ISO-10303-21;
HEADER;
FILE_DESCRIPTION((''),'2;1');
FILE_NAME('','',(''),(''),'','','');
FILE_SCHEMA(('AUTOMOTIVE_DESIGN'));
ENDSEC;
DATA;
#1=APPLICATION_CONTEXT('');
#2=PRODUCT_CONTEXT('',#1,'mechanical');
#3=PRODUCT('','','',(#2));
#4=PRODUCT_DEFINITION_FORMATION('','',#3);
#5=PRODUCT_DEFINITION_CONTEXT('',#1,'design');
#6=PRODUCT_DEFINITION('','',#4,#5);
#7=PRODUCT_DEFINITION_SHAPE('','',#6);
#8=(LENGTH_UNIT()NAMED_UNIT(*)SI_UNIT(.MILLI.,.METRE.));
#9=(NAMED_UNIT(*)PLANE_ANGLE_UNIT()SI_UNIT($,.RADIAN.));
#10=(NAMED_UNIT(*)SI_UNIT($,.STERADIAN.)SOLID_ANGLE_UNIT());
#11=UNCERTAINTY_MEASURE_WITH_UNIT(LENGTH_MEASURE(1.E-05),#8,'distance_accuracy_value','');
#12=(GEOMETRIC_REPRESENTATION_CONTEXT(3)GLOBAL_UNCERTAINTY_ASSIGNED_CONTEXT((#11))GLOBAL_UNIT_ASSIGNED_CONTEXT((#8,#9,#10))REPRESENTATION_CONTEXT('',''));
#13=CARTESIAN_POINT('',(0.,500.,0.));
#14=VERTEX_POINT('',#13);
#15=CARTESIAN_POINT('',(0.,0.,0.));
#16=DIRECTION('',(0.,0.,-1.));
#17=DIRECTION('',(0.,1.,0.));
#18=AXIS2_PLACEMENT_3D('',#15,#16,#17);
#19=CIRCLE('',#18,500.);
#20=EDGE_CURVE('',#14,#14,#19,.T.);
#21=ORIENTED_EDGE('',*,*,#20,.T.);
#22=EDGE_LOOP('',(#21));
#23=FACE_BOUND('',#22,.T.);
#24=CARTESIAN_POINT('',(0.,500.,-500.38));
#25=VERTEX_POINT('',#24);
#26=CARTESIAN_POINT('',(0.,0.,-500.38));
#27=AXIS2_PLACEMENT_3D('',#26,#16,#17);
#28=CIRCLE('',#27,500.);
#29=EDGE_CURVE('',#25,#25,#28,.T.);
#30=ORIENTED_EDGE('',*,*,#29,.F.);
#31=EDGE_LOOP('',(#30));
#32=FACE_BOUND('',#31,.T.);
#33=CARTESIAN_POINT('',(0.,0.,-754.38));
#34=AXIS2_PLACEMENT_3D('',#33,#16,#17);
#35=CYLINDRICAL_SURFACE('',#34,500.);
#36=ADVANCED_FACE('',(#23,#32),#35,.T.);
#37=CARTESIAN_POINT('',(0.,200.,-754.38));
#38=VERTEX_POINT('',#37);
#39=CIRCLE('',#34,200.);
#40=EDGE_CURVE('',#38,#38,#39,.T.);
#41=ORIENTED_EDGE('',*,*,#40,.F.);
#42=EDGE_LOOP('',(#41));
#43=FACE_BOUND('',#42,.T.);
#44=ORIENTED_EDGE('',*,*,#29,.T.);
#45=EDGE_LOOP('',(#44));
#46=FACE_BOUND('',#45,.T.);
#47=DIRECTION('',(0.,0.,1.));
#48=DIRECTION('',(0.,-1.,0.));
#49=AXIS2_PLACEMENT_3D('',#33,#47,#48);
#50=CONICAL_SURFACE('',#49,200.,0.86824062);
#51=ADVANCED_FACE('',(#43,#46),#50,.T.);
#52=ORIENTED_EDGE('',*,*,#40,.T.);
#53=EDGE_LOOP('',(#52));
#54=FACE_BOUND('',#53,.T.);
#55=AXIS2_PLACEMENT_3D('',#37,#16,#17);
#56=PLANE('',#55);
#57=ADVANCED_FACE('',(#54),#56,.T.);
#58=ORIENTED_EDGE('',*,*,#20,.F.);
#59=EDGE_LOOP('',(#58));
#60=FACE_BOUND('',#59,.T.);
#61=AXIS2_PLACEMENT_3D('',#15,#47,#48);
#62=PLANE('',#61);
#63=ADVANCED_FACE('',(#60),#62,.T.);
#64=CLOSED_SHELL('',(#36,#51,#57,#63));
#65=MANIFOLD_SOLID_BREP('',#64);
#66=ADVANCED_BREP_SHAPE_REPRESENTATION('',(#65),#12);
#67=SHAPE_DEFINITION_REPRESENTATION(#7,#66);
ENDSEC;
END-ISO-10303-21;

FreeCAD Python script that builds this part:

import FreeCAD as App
import Part
import Sketcher

V = App.Vector
Q = App.Units.Quantity


def add_polygon(sketch, points):
    """Adds a closed chain of lines whose ends are joined by coincident constraints."""
    first, n = sketch.GeometryCount, len(points)
    for a, b in zip(points, points[1:] + points[:1]):
        sketch.addGeometry(Part.LineSegment(App.Vector(*a, 0), App.Vector(*b, 0)), False)
    for i in range(n):
        sketch.addConstraint(Sketcher.Constraint("Coincident", first + i, 2, first + (i + 1) % n, 1))

doc = App.newDocument("Part")
body = doc.addObject("PartDesign::Body", "Body")

# Sketch on YZ plane
sketch1 = body.newObject("Sketcher::SketchObject", "Sketch")
sketch1.AttachmentSupport = (doc.getObject("YZ_Plane"), [""])
sketch1.MapMode = "FlatFace"
add_polygon(sketch1, [(500, 0), (0, 0), (0, -754.38), (200, -754.38), (500, -500.38)])  # lines 0-4
sketch1.addConstraint(Sketcher.Constraint("Horizontal", 0))
sketch1.addConstraint(Sketcher.Constraint("Vertical", 1))
sketch1.addConstraint(Sketcher.Constraint("Horizontal", 2))
sketch1.addConstraint(Sketcher.Constraint("Vertical", 4))
sketch1.addConstraint(Sketcher.Constraint("Coincident", 0, 2, -1, 1))
sketch1.addConstraint(Sketcher.Constraint("DistanceX", 0, 2, 0, 1, Q("500 mm")))
sketch1.addConstraint(Sketcher.Constraint("DistanceX", 2, 1, 2, 2, Q("200 mm")))
sketch1.addConstraint(Sketcher.Constraint("DistanceY", 2, 2, 3, 2, Q("254 mm")))
sketch1.addConstraint(Sketcher.Constraint("DistanceY", 1, 2, 1, 1, Q("754.38 mm")))
revolution = body.newObject("PartDesign::Revolution", "Revolution")
revolution.Profile = sketch1
revolution.ReferenceAxis = (sketch1, ["V_Axis"])
revolution.Angle = 360

doc.recompute()
